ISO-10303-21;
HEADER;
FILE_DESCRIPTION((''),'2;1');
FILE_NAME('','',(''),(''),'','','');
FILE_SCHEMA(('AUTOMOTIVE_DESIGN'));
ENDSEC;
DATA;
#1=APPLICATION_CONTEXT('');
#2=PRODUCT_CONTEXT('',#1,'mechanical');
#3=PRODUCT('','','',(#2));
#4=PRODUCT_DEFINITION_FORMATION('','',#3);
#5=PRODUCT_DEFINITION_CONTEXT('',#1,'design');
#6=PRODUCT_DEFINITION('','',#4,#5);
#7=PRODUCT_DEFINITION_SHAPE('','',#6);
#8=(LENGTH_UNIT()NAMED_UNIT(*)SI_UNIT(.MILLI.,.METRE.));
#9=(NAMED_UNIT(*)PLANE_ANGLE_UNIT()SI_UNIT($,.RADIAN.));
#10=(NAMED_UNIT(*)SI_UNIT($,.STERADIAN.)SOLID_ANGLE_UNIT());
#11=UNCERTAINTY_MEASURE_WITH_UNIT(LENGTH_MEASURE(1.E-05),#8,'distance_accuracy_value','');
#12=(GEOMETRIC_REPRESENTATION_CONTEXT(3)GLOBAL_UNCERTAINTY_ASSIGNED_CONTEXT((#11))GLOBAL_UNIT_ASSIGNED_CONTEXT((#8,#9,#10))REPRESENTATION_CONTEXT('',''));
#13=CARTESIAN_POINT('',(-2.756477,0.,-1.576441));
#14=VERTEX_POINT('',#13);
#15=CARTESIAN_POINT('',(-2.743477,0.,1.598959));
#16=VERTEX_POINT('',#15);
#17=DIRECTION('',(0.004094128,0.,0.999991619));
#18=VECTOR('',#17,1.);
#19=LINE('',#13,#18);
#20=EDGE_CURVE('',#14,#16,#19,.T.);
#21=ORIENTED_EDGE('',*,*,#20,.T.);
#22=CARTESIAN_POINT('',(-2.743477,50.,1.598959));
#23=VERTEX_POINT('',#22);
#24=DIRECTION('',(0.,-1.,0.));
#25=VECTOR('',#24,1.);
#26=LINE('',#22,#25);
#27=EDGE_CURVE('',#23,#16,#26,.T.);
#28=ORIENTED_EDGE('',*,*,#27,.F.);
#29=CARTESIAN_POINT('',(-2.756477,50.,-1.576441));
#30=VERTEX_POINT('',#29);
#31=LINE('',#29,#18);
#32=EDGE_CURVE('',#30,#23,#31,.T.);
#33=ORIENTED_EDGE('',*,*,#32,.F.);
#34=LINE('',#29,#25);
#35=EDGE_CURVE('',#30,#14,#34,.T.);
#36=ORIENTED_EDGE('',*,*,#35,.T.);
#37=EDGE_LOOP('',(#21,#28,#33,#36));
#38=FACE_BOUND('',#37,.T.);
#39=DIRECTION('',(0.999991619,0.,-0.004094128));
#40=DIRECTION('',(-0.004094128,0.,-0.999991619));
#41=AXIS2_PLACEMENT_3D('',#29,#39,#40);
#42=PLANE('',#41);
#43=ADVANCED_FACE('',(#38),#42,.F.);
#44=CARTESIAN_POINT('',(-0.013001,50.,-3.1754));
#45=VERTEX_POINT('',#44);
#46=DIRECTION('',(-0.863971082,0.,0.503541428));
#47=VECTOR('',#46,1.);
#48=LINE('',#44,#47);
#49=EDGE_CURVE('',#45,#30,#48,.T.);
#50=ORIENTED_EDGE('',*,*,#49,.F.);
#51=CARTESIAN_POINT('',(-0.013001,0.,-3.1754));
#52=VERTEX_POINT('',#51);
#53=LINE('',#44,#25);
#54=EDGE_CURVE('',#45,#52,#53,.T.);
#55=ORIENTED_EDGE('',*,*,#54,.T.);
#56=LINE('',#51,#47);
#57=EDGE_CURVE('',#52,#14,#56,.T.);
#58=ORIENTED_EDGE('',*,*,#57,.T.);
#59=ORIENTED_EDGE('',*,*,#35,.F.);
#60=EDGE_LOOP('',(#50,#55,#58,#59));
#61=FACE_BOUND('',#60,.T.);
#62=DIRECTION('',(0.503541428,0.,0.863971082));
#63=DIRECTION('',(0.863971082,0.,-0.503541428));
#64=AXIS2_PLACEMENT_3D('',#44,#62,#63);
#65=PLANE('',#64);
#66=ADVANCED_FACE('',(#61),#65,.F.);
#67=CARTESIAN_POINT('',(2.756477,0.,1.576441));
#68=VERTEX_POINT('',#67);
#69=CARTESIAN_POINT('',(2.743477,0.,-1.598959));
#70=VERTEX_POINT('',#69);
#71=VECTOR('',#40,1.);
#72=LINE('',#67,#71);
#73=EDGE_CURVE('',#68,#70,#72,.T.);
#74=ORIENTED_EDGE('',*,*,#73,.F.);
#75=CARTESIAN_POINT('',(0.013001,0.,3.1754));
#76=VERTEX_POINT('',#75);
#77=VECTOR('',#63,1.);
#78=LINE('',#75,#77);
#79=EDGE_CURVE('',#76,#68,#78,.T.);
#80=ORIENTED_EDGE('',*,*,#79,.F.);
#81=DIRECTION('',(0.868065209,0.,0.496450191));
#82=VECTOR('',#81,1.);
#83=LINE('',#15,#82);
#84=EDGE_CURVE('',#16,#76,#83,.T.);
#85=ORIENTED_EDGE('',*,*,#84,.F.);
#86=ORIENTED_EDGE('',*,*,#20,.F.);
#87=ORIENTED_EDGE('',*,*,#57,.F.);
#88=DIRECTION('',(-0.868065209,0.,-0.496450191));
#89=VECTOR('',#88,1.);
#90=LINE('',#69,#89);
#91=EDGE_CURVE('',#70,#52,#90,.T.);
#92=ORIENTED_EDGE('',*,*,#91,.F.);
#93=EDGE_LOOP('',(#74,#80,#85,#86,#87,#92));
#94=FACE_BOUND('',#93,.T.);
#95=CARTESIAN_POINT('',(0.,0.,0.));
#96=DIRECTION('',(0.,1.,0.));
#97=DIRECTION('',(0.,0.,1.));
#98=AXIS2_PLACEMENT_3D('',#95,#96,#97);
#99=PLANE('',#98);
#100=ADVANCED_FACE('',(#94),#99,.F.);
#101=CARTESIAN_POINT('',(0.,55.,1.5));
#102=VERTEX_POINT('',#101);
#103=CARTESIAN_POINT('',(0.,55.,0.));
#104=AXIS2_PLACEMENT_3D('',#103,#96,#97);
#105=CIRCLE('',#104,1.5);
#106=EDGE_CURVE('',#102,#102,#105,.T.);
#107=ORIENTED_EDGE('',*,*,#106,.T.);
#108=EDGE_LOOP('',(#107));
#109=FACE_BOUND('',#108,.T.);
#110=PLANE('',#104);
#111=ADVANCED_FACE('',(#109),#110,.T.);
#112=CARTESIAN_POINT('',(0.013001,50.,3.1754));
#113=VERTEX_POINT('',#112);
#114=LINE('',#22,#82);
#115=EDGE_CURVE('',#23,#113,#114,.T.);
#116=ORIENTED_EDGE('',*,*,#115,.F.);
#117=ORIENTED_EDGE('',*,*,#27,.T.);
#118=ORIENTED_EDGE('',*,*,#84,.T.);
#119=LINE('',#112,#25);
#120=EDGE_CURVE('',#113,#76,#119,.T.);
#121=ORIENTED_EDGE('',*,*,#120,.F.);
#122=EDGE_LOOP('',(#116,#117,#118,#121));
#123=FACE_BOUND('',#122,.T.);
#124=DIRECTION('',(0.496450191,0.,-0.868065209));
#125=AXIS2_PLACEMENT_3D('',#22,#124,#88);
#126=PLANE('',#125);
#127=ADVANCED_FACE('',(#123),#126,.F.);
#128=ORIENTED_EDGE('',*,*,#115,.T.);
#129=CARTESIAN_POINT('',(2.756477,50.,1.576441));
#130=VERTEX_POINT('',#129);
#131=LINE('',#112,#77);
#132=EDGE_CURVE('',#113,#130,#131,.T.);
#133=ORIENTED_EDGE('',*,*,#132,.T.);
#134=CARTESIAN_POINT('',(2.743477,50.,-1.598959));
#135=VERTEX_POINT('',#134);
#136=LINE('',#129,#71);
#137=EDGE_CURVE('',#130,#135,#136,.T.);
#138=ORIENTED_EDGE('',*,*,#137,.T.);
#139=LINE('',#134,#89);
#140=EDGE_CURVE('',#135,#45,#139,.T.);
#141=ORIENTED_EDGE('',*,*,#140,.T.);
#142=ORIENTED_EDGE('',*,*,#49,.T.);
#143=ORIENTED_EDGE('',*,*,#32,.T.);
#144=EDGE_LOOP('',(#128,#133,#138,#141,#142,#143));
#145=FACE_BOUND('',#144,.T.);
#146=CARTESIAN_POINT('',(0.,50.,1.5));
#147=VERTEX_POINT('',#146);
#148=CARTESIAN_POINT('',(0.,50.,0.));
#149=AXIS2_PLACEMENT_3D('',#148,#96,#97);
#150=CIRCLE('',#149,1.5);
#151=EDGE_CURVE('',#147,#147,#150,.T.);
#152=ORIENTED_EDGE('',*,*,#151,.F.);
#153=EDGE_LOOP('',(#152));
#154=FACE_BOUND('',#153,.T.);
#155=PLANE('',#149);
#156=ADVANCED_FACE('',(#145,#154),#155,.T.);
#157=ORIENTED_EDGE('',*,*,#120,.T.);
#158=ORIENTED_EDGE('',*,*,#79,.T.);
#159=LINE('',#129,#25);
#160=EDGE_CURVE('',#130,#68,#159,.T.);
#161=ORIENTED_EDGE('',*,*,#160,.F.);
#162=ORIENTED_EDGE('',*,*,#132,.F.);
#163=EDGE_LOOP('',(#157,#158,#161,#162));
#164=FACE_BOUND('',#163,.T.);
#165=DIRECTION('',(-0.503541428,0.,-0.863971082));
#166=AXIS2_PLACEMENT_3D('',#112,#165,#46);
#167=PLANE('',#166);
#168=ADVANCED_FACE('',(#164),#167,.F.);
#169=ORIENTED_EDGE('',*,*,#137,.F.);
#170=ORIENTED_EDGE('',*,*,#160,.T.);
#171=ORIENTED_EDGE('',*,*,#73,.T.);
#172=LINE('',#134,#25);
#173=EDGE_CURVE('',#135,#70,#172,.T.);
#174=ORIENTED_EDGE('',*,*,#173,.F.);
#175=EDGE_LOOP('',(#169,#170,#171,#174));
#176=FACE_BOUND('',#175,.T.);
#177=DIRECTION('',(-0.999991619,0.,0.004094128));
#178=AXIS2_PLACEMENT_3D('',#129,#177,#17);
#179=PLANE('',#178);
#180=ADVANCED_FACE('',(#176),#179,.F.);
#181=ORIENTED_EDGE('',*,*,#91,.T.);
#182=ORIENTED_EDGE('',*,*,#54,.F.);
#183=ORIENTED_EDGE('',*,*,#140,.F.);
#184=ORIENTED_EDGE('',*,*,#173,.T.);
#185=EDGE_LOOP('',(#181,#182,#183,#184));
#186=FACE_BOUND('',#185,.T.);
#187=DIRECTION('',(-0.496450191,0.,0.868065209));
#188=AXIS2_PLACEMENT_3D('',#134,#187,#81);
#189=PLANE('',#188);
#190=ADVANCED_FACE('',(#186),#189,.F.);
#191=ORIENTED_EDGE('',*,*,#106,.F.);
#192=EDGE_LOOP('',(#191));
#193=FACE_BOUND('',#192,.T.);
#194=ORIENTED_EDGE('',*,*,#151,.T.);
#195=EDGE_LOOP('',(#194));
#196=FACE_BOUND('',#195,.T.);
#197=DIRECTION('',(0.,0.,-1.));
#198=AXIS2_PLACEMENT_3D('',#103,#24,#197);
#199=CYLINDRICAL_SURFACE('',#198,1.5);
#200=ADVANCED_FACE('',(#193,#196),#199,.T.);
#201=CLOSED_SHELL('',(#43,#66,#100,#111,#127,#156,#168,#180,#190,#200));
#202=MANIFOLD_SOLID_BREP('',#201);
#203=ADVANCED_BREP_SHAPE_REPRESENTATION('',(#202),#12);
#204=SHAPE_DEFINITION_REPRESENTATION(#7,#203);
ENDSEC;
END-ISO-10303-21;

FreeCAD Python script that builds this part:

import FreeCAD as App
import Part
import Sketcher
Q = App.Units.Quantity


def add_polygon(sketch, points):
    """Adds a closed chain of lines whose ends are joined by coincident constraints."""
    first, n = sketch.GeometryCount, len(points)
    for a, b in zip(points, points[1:] + points[:1]):
        sketch.addGeometry(Part.LineSegment(App.Vector(*a, 0), App.Vector(*b, 0)), False)
    for i in range(n):
        sketch.addConstraint(Sketcher.Constraint("Coincident", first + i, 2, first + (i + 1) % n, 1))

doc = App.newDocument("Part")
params = doc.addObject("Spreadsheet::Sheet", "Params")
for row, (alias, value) in enumerate([
    ("pad1_length", "50 mm"),
    ("sketch2_diameter", "3 mm"),
    ("pad2_length", "5 mm"),
], start=1):
    params.set(f"A{row}", alias)
    params.set(f"B{row}", "=" + value)
    params.setAlias(f"B{row}", alias)

body = doc.addObject("PartDesign::Body", "Body")

sketch1 = body.newObject("Sketcher::SketchObject", "Sketch")
sketch1.AttachmentSupport = (doc.getObject("XZ_Plane"), [""])
sketch1.MapMode = "FlatFace"
add_polygon(sketch1, [(2.743477, -1.598959), (-0.013001, -3.1754), (-2.756477, -1.576441), (-2.743477, 1.598959), (0.013001, 3.1754), (2.756477, 1.576441)])
sketch1.addConstraint([
    Sketcher.Constraint("Symmetric", 0, 2, 3, 2, -1, 1),
    Sketcher.Constraint("Symmetric", 1, 2, 4, 2, -1, 1),
    Sketcher.Constraint("Symmetric", 2, 2, 5, 2, -1, 1),
    Sketcher.Constraint("Equal", 0, 1),
    Sketcher.Constraint("Equal", 1, 2),
    Sketcher.Constraint("DistanceX", 0, 2, -1, 1, Q("0.013001 mm")),
    Sketcher.Constraint("DistanceX", 1, 2, 2, 2, Q("0.013001 mm")),
    Sketcher.Constraint("DistanceY", 0, 2, -1, 1, Q("3.1754 mm")),
    Sketcher.Constraint("DistanceY", 1, 2, 2, 2, Q("3.1754 mm")),
])
pad1 = body.newObject("PartDesign::Pad", "Pad")
pad1.Profile = sketch1
pad1.setExpression("Length", "Params.pad1_length")
pad1.Reversed = True

sketch2 = body.newObject("Sketcher::SketchObject", "Sketch001")
sketch2.AttachmentSupport = (doc.getObject("XZ_Plane"), [""])
sketch2.MapMode = "FlatFace"
sketch2.AttachmentOffset = App.Placement(App.Vector(0, 0, -50), App.Rotation())
sketch2.addGeometry(Part.Circle(App.Vector(0, 0, 0), App.Vector(0, 0, 1), 1.5), False)
sketch2.addConstraint([
    Sketcher.Constraint("Coincident", 0, 3, -1, 1),
    Sketcher.Constraint("Diameter", 0, Q("3 mm")),
])
sketch2.setExpression("Constraints[1]", "Params.sketch2_diameter")
pad2 = body.newObject("PartDesign::Pad", "Pad001")
pad2.Profile = sketch2
pad2.setExpression("Length", "Params.pad2_length")
pad2.Reversed = True

doc.recompute()
